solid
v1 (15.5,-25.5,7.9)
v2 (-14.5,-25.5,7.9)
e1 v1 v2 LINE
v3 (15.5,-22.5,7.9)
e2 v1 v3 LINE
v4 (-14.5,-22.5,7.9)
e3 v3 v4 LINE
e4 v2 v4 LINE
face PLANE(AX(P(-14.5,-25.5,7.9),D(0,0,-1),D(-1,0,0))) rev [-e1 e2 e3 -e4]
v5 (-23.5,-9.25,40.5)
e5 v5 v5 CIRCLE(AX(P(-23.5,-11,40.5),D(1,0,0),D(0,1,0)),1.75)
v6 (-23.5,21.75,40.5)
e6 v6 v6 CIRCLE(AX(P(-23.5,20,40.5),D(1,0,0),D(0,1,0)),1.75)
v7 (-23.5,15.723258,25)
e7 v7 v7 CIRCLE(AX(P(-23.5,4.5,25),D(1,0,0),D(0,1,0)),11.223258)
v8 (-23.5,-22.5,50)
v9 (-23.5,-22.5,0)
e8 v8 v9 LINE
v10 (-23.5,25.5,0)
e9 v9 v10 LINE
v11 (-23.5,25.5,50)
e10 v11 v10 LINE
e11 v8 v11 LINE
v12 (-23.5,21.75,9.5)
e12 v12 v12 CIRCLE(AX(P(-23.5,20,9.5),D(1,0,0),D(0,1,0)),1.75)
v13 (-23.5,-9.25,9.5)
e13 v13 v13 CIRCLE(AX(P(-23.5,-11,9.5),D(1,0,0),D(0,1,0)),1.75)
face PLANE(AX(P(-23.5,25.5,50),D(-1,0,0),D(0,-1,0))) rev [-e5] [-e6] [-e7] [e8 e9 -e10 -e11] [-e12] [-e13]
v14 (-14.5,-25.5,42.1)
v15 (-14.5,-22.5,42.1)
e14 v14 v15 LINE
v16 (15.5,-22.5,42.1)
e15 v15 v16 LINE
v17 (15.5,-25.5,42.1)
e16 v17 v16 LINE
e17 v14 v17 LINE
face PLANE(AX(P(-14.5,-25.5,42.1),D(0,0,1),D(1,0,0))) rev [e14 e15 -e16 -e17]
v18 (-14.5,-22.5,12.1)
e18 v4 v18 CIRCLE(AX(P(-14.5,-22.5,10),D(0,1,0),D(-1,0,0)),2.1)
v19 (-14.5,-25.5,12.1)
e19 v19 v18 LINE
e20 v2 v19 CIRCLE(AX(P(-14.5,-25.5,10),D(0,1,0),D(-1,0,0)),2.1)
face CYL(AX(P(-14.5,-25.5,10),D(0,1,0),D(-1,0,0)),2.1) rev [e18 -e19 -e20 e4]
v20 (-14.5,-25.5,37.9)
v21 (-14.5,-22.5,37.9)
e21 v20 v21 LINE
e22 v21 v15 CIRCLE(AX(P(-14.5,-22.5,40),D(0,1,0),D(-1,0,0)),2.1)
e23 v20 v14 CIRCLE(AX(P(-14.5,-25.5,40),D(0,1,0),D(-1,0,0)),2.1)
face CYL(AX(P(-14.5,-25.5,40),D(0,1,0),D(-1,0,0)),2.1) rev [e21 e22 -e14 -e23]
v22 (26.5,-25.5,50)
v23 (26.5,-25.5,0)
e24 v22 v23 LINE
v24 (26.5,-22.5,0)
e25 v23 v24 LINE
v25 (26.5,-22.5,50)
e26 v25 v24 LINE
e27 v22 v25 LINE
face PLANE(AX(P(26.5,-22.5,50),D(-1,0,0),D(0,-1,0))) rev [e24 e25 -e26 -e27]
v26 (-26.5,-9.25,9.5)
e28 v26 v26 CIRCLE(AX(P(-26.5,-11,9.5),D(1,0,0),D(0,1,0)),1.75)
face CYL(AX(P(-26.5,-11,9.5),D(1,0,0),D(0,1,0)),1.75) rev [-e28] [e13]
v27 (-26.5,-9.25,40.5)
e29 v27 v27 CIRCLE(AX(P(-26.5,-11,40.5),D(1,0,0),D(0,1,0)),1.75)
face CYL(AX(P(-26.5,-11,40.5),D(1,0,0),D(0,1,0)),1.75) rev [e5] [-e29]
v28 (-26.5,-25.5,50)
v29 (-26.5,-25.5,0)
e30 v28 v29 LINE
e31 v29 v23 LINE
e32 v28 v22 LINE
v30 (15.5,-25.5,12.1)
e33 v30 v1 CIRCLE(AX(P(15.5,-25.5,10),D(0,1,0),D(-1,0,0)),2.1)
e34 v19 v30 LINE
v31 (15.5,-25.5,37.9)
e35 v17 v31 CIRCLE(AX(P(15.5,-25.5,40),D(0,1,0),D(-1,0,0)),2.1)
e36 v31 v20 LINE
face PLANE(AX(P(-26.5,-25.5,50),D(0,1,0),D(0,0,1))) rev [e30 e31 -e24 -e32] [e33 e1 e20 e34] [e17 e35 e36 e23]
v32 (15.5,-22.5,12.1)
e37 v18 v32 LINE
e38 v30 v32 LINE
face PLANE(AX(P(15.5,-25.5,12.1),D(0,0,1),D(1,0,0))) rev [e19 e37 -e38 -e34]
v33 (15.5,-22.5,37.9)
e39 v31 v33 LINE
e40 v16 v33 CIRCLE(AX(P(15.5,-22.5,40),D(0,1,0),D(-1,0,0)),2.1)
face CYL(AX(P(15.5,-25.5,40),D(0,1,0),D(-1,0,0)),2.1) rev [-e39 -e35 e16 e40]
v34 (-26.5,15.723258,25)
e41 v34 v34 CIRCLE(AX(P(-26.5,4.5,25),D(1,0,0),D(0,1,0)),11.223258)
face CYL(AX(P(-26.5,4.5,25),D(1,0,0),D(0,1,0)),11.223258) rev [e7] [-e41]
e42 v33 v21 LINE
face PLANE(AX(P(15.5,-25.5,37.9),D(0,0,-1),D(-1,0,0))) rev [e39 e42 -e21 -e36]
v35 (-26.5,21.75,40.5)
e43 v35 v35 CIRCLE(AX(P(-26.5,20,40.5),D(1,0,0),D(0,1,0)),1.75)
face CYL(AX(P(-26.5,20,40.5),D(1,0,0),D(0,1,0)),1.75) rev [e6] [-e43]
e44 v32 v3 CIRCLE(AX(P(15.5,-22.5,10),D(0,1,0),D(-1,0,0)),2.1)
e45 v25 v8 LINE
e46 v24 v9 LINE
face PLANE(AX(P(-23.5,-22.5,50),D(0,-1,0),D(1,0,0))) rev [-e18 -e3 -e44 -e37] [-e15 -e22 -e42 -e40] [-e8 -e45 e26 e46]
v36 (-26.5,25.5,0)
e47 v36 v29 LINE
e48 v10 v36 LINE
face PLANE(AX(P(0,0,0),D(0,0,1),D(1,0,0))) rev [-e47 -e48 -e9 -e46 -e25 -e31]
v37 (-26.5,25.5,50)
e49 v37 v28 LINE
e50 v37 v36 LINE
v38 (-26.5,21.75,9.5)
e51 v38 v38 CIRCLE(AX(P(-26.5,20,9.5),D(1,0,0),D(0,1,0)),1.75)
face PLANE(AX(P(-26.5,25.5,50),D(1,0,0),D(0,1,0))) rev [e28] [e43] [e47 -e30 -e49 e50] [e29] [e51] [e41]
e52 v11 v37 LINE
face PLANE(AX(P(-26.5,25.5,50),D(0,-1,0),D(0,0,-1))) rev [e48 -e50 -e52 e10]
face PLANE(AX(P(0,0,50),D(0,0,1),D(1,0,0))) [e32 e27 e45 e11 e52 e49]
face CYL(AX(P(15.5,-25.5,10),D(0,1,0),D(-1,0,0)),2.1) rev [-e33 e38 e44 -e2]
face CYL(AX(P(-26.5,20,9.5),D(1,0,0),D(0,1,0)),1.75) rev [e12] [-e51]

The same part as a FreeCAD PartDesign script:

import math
import FreeCAD as App
import Part
import Sketcher

V = App.Vector

doc = App.newDocument("Part")
body = doc.addObject("PartDesign::Body", "Body")

sketch1 = doc.addObject("Sketcher::SketchObject", "Sketch")
body.addObject(sketch1)
sketch1.AttachmentSupport = (doc.XY_Plane, [""])
sketch1.MapMode = "FlatFace"
sketch1.addGeometry([
    Part.LineSegment(V(-23.5, -22.5, 0), V(-23.5, 25.5, 0)),
    Part.LineSegment(V(-23.5, 25.5, 0), V(-26.5, 25.5, 0)),
    Part.LineSegment(V(-26.5, 25.5, 0), V(-26.5, -25.5, 0)),
    Part.LineSegment(V(-26.5, -25.5, 0), V(26.5, -25.5, 0)),
    Part.LineSegment(V(26.5, -25.5, 0), V(26.5, -22.5, 0)),
    Part.LineSegment(V(26.5, -22.5, 0), V(-23.5, -22.5, 0)),
], False)
sketch1.addConstraint([
    Sketcher.Constraint("Coincident", 0, 2, 1, 1),
    Sketcher.Constraint("Coincident", 1, 2, 2, 1),
    Sketcher.Constraint("Coincident", 2, 2, 3, 1),
    Sketcher.Constraint("Coincident", 3, 2, 4, 1),
    Sketcher.Constraint("Coincident", 4, 2, 5, 1),
    Sketcher.Constraint("Coincident", 5, 2, 0, 1),
    Sketcher.Constraint("Vertical", 0),
    Sketcher.Constraint("Horizontal", 1),
    Sketcher.Constraint("Vertical", 2),
    Sketcher.Constraint("Horizontal", 3),
    Sketcher.Constraint("Vertical", 4),
    Sketcher.Constraint("Horizontal", 5),
    Sketcher.Constraint("Symmetric", 1, 2, 3, 2, -1, 1),
    Sketcher.Constraint("Equal", 1, 4),
    Sketcher.Constraint("DistanceX", 1, 2, 1, 1, 3.0),
    Sketcher.Constraint("DistanceX", 3, 1, 3, 2, 53.0),
    Sketcher.Constraint("DistanceY", 0, 1, 0, 2, 48.0),
])
pad1 = doc.addObject("PartDesign::Pad", "Pad")
body.addObject(pad1)
pad1.Profile = sketch1
pad1.Length = 50

sketch2 = doc.addObject("Sketcher::SketchObject", "Sketch001")
body.addObject(sketch2)
sketch2.AttachmentSupport = (doc.YZ_Plane, [""])
sketch2.MapMode = "FlatFace"
sketch2.AttachmentOffset = App.Placement(V(0, 0, -23.5), App.Rotation())
sketch2.addGeometry([
    Part.Circle(V(4.5, 25, 0), V(0, 0, 1), 11.2),
    Part.Circle(V(20, 40.5, 0), V(0, 0, 1), 1.8),
    Part.Circle(V(20, 9.5, 0), V(0, 0, 1), 1.8),
    Part.Circle(V(-11, 9.5, 0), V(0, 0, 1), 1.8),
    Part.Circle(V(-11, 40.5, 0), V(0, 0, 1), 1.8),
], False)
sketch2.addConstraint([
    Sketcher.Constraint("Equal", 1, 2),
    Sketcher.Constraint("Equal", 2, 3),
    Sketcher.Constraint("Equal", 3, 4),
    Sketcher.Constraint("Horizontal", 2, 3, 3, 3),
    Sketcher.Constraint("Horizontal", 1, 3, 4, 3),
    Sketcher.Constraint("Vertical", 1, 3, 2, 3),
    Sketcher.Constraint("Vertical", 3, 3, 4, 3),
    Sketcher.Constraint("Diameter", 1, 3.5),
    Sketcher.Constraint("DistanceY", -1, 1, 0, 3, 25.0),
    Sketcher.Constraint("DistanceX", -1, 1, 1, 3, 20.0),
    Sketcher.Constraint("DistanceX", 3, 3, -1, 1, 11.0),
    Sketcher.Constraint("DistanceY", 2, 3, 1, 3, 31.0),
    Sketcher.Constraint("DistanceX", -1, 1, 0, 3, 4.5),
    Sketcher.Constraint("DistanceY", -1, 1, 1, 3, 40.5),
    Sketcher.Constraint("Diameter", 0, 22.446515),
])
pocket1 = doc.addObject("PartDesign::Pocket", "Pocket")
body.addObject(pocket1)
pocket1.Profile = sketch2
pocket1.Type = "ThroughAll"

sketch3 = doc.addObject("Sketcher::SketchObject", "Sketch002")
body.addObject(sketch3)
sketch3.AttachmentSupport = (doc.XZ_Plane, [""])
sketch3.MapMode = "FlatFace"
sketch3.AttachmentOffset = App.Placement(V(0, 0, 22.5), App.Rotation())
sketch3.addGeometry([
    Part.LineSegment(V(15.5, 7.9, 0), V(-14.5, 7.9, 0)),
    Part.ArcOfCircle(Part.Circle(V(-14.5, 10, 0), V(0, 0, 1), 2.1), math.radians(90), math.radians(270)),
    Part.LineSegment(V(-14.5, 12.1, 0), V(15.5, 12.1, 0)),
    Part.ArcOfCircle(Part.Circle(V(15.5, 10, 0), V(0, 0, 1), 2.1), math.radians(-90), math.radians(90)),
    Part.LineSegment(V(15.5, 37.9, 0), V(-14.5, 37.9, 0)),
    Part.ArcOfCircle(Part.Circle(V(-14.5, 40, 0), V(0, 0, 1), 2.1), math.radians(90), math.radians(270)),
    Part.LineSegment(V(-14.5, 42.1, 0), V(15.5, 42.1, 0)),
    Part.ArcOfCircle(Part.Circle(V(15.5, 40, 0), V(0, 0, 1), 2.1), math.radians(-90), math.radians(90)),
], False)
sketch3.addConstraint([
    Sketcher.Constraint("Tangent", 0, 2, 1, 2),
    Sketcher.Constraint("Tangent", 1, 1, 2, 1),
    Sketcher.Constraint("Tangent", 2, 2, 3, 2),
    Sketcher.Constraint("Tangent", 3, 1, 0, 1),
    Sketcher.Constraint("Tangent", 4, 2, 5, 2),
    Sketcher.Constraint("Tangent", 5, 1, 6, 1),
    Sketcher.Constraint("Tangent", 6, 2, 7, 2),
    Sketcher.Constraint("Tangent", 7, 1, 4, 1),
    Sketcher.Constraint("Horizontal", 0),
    Sketcher.Constraint("Horizontal", 2),
    Sketcher.Constraint("Horizontal", 4),
    Sketcher.Constraint("Horizontal", 6),
    Sketcher.Constraint("Equal", 3, 5),
    Sketcher.Constraint("Vertical", 1, 3, 5, 3),
    Sketcher.Constraint("Vertical", 3, 3, 7, 3),
    Sketcher.Constraint("Radius", 1, 2.1),
    Sketcher.Constraint("DistanceX", 0, 2, 0, 1, 30.0),
    Sketcher.Constraint("DistanceY", -1, 1, 1, 3, 10.0),
    Sketcher.Constraint("DistanceY", -1, 1, 5, 3, 40.0),
    Sketcher.Constraint("DistanceX", 1, 3, -1, 1, 14.5),
])
pocket2 = doc.addObject("PartDesign::Pocket", "Pocket001")
body.addObject(pocket2)
pocket2.Profile = sketch3
pocket2.Type = "ThroughAll"
pocket2.Reversed = True

doc.recompute()
